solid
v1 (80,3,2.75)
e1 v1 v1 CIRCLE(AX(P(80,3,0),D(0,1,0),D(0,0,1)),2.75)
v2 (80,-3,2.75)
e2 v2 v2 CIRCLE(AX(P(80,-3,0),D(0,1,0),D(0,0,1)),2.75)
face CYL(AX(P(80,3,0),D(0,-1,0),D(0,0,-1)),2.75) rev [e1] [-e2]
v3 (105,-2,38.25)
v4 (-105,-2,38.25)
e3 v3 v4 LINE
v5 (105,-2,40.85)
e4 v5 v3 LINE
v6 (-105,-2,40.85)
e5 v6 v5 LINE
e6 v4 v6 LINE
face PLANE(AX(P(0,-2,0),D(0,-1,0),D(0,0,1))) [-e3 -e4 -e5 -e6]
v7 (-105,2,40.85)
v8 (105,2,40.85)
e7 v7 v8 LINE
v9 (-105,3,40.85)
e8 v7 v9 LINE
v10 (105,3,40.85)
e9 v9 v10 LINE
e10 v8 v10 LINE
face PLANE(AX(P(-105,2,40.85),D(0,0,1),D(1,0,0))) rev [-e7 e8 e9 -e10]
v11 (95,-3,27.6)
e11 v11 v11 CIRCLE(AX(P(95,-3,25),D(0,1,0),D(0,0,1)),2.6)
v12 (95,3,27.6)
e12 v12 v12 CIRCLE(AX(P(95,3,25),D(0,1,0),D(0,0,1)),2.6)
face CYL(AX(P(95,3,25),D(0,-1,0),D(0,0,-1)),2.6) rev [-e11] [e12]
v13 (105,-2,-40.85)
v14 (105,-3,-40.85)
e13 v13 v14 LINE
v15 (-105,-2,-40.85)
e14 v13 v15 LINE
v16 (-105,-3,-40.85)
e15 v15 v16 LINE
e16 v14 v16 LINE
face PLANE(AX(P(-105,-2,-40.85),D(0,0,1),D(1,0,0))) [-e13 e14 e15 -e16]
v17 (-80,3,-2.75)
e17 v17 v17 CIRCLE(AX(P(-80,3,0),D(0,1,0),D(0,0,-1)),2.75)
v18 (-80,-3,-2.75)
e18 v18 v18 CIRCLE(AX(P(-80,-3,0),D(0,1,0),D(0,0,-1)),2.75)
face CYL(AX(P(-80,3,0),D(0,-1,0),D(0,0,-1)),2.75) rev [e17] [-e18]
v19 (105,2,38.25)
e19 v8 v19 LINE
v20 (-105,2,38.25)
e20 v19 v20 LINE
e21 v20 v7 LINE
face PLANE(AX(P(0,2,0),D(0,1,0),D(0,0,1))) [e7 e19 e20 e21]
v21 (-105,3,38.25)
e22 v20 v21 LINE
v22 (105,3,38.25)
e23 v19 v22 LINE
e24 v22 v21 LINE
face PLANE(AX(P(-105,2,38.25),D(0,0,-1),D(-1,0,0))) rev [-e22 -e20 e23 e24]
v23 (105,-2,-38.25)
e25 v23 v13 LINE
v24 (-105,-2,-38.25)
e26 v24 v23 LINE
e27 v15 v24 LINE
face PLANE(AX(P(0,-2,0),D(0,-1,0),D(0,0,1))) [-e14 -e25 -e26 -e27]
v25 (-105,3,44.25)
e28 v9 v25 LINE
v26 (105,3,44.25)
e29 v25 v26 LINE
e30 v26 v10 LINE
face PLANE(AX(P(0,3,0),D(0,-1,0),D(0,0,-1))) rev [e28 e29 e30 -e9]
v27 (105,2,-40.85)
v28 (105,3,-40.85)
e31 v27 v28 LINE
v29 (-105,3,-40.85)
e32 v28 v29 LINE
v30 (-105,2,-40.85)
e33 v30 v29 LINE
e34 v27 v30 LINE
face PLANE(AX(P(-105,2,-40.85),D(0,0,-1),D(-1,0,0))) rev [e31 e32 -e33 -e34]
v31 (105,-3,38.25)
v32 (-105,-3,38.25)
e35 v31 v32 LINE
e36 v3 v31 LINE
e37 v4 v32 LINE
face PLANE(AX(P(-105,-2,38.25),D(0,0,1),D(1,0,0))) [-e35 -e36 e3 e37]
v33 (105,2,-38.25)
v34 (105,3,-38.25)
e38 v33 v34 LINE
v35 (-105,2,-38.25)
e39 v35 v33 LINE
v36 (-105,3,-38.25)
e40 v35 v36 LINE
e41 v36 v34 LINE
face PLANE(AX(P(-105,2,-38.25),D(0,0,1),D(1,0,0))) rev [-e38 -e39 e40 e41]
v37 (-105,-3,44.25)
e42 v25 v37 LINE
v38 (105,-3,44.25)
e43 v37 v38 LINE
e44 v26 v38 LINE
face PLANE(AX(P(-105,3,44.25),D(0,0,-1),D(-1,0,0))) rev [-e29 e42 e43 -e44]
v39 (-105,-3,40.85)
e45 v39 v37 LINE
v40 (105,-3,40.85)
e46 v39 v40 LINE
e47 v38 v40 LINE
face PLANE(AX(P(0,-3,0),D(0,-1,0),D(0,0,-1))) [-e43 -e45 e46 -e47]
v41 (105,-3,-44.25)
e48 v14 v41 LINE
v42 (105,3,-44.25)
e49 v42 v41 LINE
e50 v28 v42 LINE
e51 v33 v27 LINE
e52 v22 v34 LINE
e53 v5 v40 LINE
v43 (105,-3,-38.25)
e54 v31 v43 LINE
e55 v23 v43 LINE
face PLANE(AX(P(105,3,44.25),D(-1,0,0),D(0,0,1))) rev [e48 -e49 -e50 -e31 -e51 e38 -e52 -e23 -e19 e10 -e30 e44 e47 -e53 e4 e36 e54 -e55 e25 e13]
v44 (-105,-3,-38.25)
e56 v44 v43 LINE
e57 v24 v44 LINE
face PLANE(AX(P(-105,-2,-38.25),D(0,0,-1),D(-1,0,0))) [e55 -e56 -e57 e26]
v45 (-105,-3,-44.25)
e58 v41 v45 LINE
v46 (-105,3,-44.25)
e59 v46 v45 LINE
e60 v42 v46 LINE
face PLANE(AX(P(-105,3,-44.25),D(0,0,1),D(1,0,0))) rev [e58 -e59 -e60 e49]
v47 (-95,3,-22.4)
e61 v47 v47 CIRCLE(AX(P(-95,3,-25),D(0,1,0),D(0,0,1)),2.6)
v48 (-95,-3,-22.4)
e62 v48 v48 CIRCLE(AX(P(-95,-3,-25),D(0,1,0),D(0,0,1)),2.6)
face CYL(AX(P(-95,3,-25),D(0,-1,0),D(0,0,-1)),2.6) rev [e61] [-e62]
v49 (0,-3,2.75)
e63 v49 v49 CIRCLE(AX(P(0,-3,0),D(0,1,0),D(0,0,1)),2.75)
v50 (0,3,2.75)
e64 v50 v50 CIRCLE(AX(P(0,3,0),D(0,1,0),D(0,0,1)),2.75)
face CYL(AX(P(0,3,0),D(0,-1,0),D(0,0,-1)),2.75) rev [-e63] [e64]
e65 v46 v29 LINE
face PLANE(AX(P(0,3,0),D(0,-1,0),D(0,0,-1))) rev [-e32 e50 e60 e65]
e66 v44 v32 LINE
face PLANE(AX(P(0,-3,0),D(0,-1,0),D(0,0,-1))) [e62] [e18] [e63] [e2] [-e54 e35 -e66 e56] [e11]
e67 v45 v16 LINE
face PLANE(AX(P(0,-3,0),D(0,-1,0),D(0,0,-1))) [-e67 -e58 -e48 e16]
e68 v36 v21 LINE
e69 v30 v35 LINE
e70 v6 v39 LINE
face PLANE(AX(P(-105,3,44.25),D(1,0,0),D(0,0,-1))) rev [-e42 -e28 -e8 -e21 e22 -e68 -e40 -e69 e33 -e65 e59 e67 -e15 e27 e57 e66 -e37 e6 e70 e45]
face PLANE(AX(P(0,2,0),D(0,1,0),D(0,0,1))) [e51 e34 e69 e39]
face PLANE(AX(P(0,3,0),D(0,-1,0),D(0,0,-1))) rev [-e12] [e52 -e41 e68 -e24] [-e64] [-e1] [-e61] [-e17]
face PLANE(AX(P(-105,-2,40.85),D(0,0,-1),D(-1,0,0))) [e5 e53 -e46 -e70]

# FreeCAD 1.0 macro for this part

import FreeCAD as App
import Part
import Sketcher

V = App.Vector
Q = App.Units.Quantity

doc = App.newDocument("Part")
body = doc.addObject("PartDesign::Body", "Body")

# Sketch on XZ plane
sketch1 = body.newObject("Sketcher::SketchObject", "Sketch")
sketch1.AttachmentSupport = (doc.getObject("XZ_Plane"), [""])
sketch1.MapMode = "FlatFace"
sketch1.addGeometry(Part.LineSegment(V(-105, -44.2, 0), V(-105, 44.2, 0)), False)
sketch1.addGeometry(Part.LineSegment(V(-105, 44.2, 0), V(105, 44.2, 0)), False)
sketch1.addGeometry(Part.LineSegment(V(105, 44.2, 0), V(105, -44.2, 0)), False)
sketch1.addGeometry(Part.LineSegment(V(105, -44.2, 0), V(-105, -44.2, 0)), False)
sketch1.addGeometry(Part.Circle(V(95, 25, 0), V(0, 0, 1), 2.6), False)
sketch1.addGeometry(Part.Circle(V(-80, 0, 0), V(0, 0, 1), 2.8), False)
sketch1.addGeometry(Part.Circle(V(-95, -25, 0), V(0, 0, 1), 2.6), False)
sketch1.addGeometry(Part.Circle(V(0, 0, 0), V(0, 0, 1), 2.8), False)
sketch1.addGeometry(Part.Circle(V(80, 0, 0), V(0, 0, 1), 2.8), False)
sketch1.addConstraint(Sketcher.Constraint("Coincident", 0, 2, 1, 1))
sketch1.addConstraint(Sketcher.Constraint("Coincident", 1, 2, 2, 1))
sketch1.addConstraint(Sketcher.Constraint("Coincident", 2, 2, 3, 1))
sketch1.addConstraint(Sketcher.Constraint("Coincident", 3, 2, 0, 1))
sketch1.addConstraint(Sketcher.Constraint("Vertical", 0))
sketch1.addConstraint(Sketcher.Constraint("Horizontal", 1))
sketch1.addConstraint(Sketcher.Constraint("Vertical", 2))
sketch1.addConstraint(Sketcher.Constraint("Horizontal", 3))
sketch1.addConstraint(Sketcher.Constraint("Coincident", 7, 3, -1, 1))
sketch1.addConstraint(Sketcher.Constraint("Equal", 4, 6))
sketch1.addConstraint(Sketcher.Constraint("Equal", 5, 7))
sketch1.addConstraint(Sketcher.Constraint("Equal", 7, 8))
sketch1.addConstraint(Sketcher.Constraint("Symmetric", 4, 3, 6, 3, -1, 1))
sketch1.addConstraint(Sketcher.Constraint("Symmetric", 5, 3, 8, 3, -1, 1))
sketch1.addConstraint(Sketcher.Constraint("Symmetric", 0, 2, 2, 2, -1, 1))
sketch1.addConstraint(Sketcher.Constraint("PointOnObject", 5, 3, -1))
sketch1.addConstraint(Sketcher.Constraint("Diameter", 4, Q("5.2 mm")))
sketch1.addConstraint(Sketcher.Constraint("Diameter", 5, Q("5.5 mm")))
sketch1.addConstraint(Sketcher.Constraint("DistanceX", 1, 1, 1, 2, Q("210 mm")))
sketch1.addConstraint(Sketcher.Constraint("DistanceY", 0, 1, 0, 2, Q("88.5 mm")))
sketch1.addConstraint(Sketcher.Constraint("DistanceX", -1, 1, 4, 3, Q("95 mm")))
sketch1.addConstraint(Sketcher.Constraint("DistanceY", -1, 1, 4, 3, Q("25 mm")))
sketch1.addConstraint(Sketcher.Constraint("DistanceX", 5, 3, -1, 1, Q("80 mm")))
pad1 = body.newObject("PartDesign::Pad", "Pad")
pad1.Profile = sketch1
pad1.Length = 6
pad1.Midplane = True

# Sketch on XZ plane
sketch2 = body.newObject("Sketcher::SketchObject", "Sketch001")
sketch2.AttachmentSupport = (doc.getObject("XZ_Plane"), [""])
sketch2.MapMode = "FlatFace"
sketch2.AttachmentOffset = App.Placement(V(0, 0, -3), App.Rotation())
sketch2.addGeometry(Part.LineSegment(V(-105, -40.9, 0), V(-105, -38.2, 0)), False)
sketch2.addGeometry(Part.LineSegment(V(-105, -38.2, 0), V(105, -38.2, 0)), False)
sketch2.addGeometry(Part.LineSegment(V(105, -38.2, 0), V(105, -40.9, 0)), False)
sketch2.addGeometry(Part.LineSegment(V(105, -40.9, 0), V(-105, -40.9, 0)), False)
sketch2.addGeometry(Part.LineSegment(V(-105, 38.2, 0), V(-105, 40.9, 0)), False)
sketch2.addGeometry(Part.LineSegment(V(-105, 40.9, 0), V(105, 40.9, 0)), False)
sketch2.addGeometry(Part.LineSegment(V(105, 40.9, 0), V(105, 38.2, 0)), False)
sketch2.addGeometry(Part.LineSegment(V(105, 38.2, 0), V(-105, 38.2, 0)), False)
sketch2.addConstraint(Sketcher.Constraint("Coincident", 0, 2, 1, 1))
sketch2.addConstraint(Sketcher.Constraint("Coincident", 1, 2, 2, 1))
sketch2.addConstraint(Sketcher.Constraint("Coincident", 2, 2, 3, 1))
sketch2.addConstraint(Sketcher.Constraint("Coincident", 3, 2, 0, 1))
sketch2.addConstraint(Sketcher.Constraint("Coincident", 4, 2, 5, 1))
sketch2.addConstraint(Sketcher.Constraint("Coincident", 5, 2, 6, 1))
sketch2.addConstraint(Sketcher.Constraint("Coincident", 6, 2, 7, 1))
sketch2.addConstraint(Sketcher.Constraint("Coincident", 7, 2, 4, 1))
sketch2.addConstraint(Sketcher.Constraint("Vertical", 0))
sketch2.addConstraint(Sketcher.Constraint("Horizontal", 1))
sketch2.addConstraint(Sketcher.Constraint("Vertical", 2))
sketch2.addConstraint(Sketcher.Constraint("Horizontal", 3))
sketch2.addConstraint(Sketcher.Constraint("Vertical", 4))
sketch2.addConstraint(Sketcher.Constraint("Horizontal", 5))
sketch2.addConstraint(Sketcher.Constraint("Vertical", 6))
sketch2.addConstraint(Sketcher.Constraint("Horizontal", 7))
sketch2.addConstraint(Sketcher.Constraint("Symmetric", 2, 2, 4, 2, -1, 1))
sketch2.addConstraint(Sketcher.Constraint("Symmetric", 0, 2, 6, 2, -1, 1))
sketch2.addConstraint(Sketcher.Constraint("Vertical", 3, 2, 4, 2))
sketch2.addConstraint(Sketcher.Constraint("DistanceX", 1, 1, 1, 2, Q("210 mm")))
sketch2.addConstraint(Sketcher.Constraint("DistanceY", 0, 1, 0, 2, Q("2.6 mm")))
sketch2.addConstraint(Sketcher.Constraint("DistanceY", 0, 2, 4, 2, Q("79.1 mm")))
pocket1 = body.newObject("PartDesign::Pocket", "Pocket")
pocket1.Profile = sketch2
pocket1.Length = 1
pocket1.Reversed = True
doc.recompute()

mirrored = body.newObject("PartDesign::Mirrored", "Mirrored")
mirrored.Originals = [pocket1]
mirrored.MirrorPlane = (doc.getObject("XZ_Plane"), [""])
body.Tip = mirrored

doc.recompute()
